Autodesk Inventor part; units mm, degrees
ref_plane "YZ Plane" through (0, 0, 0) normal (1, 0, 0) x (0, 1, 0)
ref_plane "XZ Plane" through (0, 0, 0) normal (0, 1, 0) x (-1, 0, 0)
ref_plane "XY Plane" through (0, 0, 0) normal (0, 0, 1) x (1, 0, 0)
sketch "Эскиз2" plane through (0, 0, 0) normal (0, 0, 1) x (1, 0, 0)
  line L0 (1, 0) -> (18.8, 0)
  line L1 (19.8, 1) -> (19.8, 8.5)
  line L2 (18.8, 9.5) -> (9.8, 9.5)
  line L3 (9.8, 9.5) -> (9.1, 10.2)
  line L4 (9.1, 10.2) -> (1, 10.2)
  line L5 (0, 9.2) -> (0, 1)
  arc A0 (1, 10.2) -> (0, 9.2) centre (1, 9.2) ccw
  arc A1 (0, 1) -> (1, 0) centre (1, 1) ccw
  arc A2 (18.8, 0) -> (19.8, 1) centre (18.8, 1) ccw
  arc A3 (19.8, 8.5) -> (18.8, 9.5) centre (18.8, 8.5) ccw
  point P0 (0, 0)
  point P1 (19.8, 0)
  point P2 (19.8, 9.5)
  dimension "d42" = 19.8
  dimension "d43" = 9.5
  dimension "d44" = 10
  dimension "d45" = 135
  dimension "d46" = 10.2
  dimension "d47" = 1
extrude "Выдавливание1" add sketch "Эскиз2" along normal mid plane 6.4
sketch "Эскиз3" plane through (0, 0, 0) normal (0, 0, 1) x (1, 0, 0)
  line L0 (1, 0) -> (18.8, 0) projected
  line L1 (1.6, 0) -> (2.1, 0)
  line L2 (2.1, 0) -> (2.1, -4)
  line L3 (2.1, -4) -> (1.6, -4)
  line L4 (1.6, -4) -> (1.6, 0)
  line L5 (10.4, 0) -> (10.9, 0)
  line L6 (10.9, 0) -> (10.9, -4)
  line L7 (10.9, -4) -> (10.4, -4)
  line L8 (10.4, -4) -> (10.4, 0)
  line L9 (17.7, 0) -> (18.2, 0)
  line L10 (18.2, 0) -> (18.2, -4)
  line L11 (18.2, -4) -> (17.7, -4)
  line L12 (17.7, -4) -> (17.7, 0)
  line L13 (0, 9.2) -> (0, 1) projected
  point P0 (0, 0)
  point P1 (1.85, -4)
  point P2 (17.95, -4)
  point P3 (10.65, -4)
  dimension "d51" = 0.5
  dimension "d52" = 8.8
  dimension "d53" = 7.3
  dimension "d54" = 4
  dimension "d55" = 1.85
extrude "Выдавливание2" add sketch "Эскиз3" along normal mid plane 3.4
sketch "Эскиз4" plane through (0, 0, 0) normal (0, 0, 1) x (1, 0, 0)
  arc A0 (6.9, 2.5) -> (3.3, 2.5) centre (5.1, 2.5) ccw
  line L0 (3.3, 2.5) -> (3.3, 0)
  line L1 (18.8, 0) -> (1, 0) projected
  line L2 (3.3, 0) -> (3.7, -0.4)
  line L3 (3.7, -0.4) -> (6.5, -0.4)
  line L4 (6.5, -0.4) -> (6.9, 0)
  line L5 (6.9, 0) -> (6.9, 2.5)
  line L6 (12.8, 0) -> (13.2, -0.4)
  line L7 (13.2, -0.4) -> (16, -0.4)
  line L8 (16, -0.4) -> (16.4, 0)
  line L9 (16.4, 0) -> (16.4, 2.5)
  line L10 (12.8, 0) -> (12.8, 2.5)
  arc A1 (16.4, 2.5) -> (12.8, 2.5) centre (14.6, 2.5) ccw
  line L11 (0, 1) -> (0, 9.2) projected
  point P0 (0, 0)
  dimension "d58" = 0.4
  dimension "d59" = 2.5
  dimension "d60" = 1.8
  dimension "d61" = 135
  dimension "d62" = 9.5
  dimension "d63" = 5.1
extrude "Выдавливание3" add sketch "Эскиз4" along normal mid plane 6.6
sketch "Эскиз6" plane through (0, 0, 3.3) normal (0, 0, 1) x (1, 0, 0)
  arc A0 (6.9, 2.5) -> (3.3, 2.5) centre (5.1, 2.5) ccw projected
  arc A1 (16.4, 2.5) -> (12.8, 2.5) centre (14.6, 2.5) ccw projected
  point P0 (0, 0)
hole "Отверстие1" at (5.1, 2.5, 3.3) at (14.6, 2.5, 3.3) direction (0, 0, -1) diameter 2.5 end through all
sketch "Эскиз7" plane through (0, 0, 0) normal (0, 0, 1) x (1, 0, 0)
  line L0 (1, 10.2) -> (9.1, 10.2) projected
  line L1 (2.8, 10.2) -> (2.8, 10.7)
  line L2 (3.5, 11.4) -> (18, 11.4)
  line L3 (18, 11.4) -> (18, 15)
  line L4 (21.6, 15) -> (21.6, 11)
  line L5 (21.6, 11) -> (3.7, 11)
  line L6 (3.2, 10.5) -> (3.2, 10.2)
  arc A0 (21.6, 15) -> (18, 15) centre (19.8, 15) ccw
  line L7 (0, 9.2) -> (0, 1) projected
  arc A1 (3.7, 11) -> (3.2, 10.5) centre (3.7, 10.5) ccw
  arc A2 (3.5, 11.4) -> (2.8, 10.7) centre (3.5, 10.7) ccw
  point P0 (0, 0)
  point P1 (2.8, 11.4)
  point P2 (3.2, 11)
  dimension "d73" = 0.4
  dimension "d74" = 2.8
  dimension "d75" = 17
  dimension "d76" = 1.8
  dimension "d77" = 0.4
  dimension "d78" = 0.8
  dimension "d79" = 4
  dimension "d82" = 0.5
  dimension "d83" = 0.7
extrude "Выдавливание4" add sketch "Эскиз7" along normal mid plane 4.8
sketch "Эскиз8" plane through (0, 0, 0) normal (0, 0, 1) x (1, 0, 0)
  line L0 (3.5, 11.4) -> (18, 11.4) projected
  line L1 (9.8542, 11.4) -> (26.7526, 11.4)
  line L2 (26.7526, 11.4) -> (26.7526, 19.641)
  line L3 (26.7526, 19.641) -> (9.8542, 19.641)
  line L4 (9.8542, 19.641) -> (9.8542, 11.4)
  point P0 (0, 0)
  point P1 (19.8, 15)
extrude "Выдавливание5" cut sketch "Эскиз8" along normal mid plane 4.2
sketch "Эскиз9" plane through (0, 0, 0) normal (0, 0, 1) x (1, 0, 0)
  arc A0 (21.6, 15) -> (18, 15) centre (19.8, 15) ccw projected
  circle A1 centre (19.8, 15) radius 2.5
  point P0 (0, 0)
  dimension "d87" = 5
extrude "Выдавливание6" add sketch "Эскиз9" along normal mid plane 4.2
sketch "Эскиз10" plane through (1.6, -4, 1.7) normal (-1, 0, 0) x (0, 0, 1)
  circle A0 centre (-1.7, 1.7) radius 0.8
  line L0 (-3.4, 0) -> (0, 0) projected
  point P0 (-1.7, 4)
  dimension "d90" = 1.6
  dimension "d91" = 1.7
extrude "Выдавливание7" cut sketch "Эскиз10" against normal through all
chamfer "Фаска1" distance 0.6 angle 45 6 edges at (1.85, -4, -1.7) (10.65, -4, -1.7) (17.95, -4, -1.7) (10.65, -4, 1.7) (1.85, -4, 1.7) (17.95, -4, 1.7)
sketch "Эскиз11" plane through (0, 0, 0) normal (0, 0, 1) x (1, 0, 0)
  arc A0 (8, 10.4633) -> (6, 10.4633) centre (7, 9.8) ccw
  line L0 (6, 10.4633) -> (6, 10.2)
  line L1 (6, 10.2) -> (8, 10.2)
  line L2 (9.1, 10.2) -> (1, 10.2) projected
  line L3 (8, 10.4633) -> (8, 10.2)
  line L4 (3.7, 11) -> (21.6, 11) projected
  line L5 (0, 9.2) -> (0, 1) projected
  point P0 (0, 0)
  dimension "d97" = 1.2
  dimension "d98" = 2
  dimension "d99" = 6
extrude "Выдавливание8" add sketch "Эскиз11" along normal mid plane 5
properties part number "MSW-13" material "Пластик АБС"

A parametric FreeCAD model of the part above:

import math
import FreeCAD as App
import Part
import Sketcher
from FreeCAD import Vector
Q = App.Units.Quantity


def edges_at(feature, points):
    """Names of the edges that pass closest to the given points."""
    edges = feature.Shape.Edges
    near = lambda p: min(range(len(edges)), key=lambda i: edges[i].distToShape(Part.Vertex(*p))[0])
    return sorted({f"Edge{near(p) + 1}" for p in points})

doc = App.newDocument("Part")
params = doc.addObject("Spreadsheet::Sheet", "Params")
for row, (alias, value) in enumerate([
    ("sketch1_radius", "1 mm"),
    ("pad1_length", "6.4 mm"),
    ("sketch2_height", "4 mm"),
    ("sketch2_width", "0.5 mm"),
    ("pad2_length", "3.4 mm"),
    ("sketch3_radius", "1.8 mm"),
    ("sketch3_height", "2.5 mm"),
    ("pad3_length", "6.6 mm"),
    ("sketch4_diameter", "2.5 mm"),
    ("hole_diameter", "2.5 mm"),
    ("sketch5_radius", "0.5 mm"),
    ("sketch5_radius2", "1.8 mm"),
    ("sketch5_radius3", "0.7 mm"),
    ("sketch5_height", "4 mm"),
    ("sketch5_width", "0.4 mm"),
    ("pad4_length", "4.8 mm"),
    ("pocket1_length", "4.2 mm"),
    ("sketch7_diameter", "5 mm"),
    ("pad5_length", "4.2 mm"),
    ("sketch8_diameter", "1.6 mm"),
    ("chamfer_size", "0.6 mm"),
    ("sketch9_radius", "1.2 mm"),
    ("sketch9_width", "2 mm"),
    ("pad6_length", "5 mm"),
], start=1):
    params.set(f"A{row}", alias)
    params.set(f"B{row}", "=" + value)
    params.setAlias(f"B{row}", alias)

body = doc.addObject("PartDesign::Body", "Body")

# Sketch on XY plane
sketch1 = body.newObject("Sketcher::SketchObject", "Sketch")
sketch1.AttachmentSupport = (doc.getObject("XY_Plane"), [""])
sketch1.MapMode = "FlatFace"
sketch1.addGeometry([
    Part.ArcOfCircle(Part.Circle(Vector(1, 1, 0), Vector(0, 0, 1), 1), math.radians(180), math.radians(270)),  # 0
    Part.LineSegment(Vector(1, 0, 0), Vector(18.8, 0, 0)),  # 1
    Part.ArcOfCircle(Part.Circle(Vector(18.8, 1, 0), Vector(0, 0, 1), 1), math.radians(-90), math.radians(0)),  # 2
    Part.LineSegment(Vector(19.8, 1, 0), Vector(19.8, 8.5, 0)),  # 3
    Part.ArcOfCircle(Part.Circle(Vector(18.8, 8.5, 0), Vector(0, 0, 1), 1), math.radians(0), math.radians(90)),  # 4
    Part.LineSegment(Vector(18.8, 9.5, 0), Vector(9.8, 9.5, 0)),  # 5
    Part.LineSegment(Vector(9.8, 9.5, 0), Vector(9.1, 10.2, 0)),  # 6
    Part.LineSegment(Vector(9.1, 10.2, 0), Vector(1, 10.2, 0)),  # 7
    Part.ArcOfCircle(Part.Circle(Vector(1, 9.2, 0), Vector(0, 0, 1), 1), math.radians(90), math.radians(180)),  # 8
    Part.LineSegment(Vector(0, 9.2, 0), Vector(0, 1, 0)),  # 9
], False)
sketch1.addConstraint([
    Sketcher.Constraint("Tangent", 0, 2, 1, 1),
    Sketcher.Constraint("Tangent", 1, 2, 2, 1),
    Sketcher.Constraint("Tangent", 2, 2, 3, 1),
    Sketcher.Constraint("Tangent", 3, 2, 4, 1),
    Sketcher.Constraint("Tangent", 4, 2, 5, 1),
    Sketcher.Constraint("Coincident", 5, 2, 6, 1),
    Sketcher.Constraint("Coincident", 6, 2, 7, 1),
    Sketcher.Constraint("Tangent", 7, 2, 8, 1),
    Sketcher.Constraint("Tangent", 8, 2, 9, 1),
    Sketcher.Constraint("Tangent", 9, 2, 0, 1),
    Sketcher.Constraint("Horizontal", 1),
    Sketcher.Constraint("Vertical", 3),
    Sketcher.Constraint("Horizontal", 5),
    Sketcher.Constraint("Horizontal", 7),
    Sketcher.Constraint("Vertical", 9),
    Sketcher.Constraint("Equal", 0, 2),
    Sketcher.Constraint("Equal", 2, 4),
    Sketcher.Constraint("Equal", 4, 8),
    Sketcher.Constraint("PointOnObject", 0, 2, -1),
    Sketcher.Constraint("PointOnObject", 8, 2, -2),
    Sketcher.Constraint("Radius", 0, 1.0),
    Sketcher.Constraint("Angle", 6, Q("135 deg")),
    Sketcher.Constraint("DistanceX", 5, 2, 3, 2, 10.0),
    Sketcher.Constraint("DistanceX", -1, 1, 2, 2, 19.8),
    Sketcher.Constraint("DistanceY", -1, 1, 4, 2, 9.5),
    Sketcher.Constraint("DistanceY", -1, 1, 6, 2, 10.2),
])
sketch1.setExpression("Constraints[20]", "Params.sketch1_radius")
pad1 = body.newObject("PartDesign::Pad", "Pad")
pad1.Profile = sketch1
pad1.setExpression("Length", "Params.pad1_length")
pad1.Midplane = True

# Sketch on XY plane
sketch2 = body.newObject("Sketcher::SketchObject", "Sketch001")
sketch2.AttachmentSupport = (doc.getObject("XY_Plane"), [""])
sketch2.MapMode = "FlatFace"
sketch2.addGeometry([
    Part.LineSegment(Vector(18.2, 0, 0), Vector(17.7, 0, 0)),  # 0
    Part.LineSegment(Vector(17.7, 0, 0), Vector(17.7, -4, 0)),  # 1
    Part.LineSegment(Vector(17.7, -4, 0), Vector(18.2, -4, 0)),  # 2
    Part.LineSegment(Vector(18.2, -4, 0), Vector(18.2, 0, 0)),  # 3
    Part.LineSegment(Vector(10.9, 0, 0), Vector(10.4, 0, 0)),  # 4
    Part.LineSegment(Vector(10.4, 0, 0), Vector(10.4, -4, 0)),  # 5
    Part.LineSegment(Vector(10.4, -4, 0), Vector(10.9, -4, 0)),  # 6
    Part.LineSegment(Vector(10.9, -4, 0), Vector(10.9, 0, 0)),  # 7
    Part.LineSegment(Vector(2.1, 0, 0), Vector(1.6, 0, 0)),  # 8
    Part.LineSegment(Vector(1.6, 0, 0), Vector(1.6, -4, 0)),  # 9
    Part.LineSegment(Vector(1.6, -4, 0), Vector(2.1, -4, 0)),  # 10
    Part.LineSegment(Vector(2.1, -4, 0), Vector(2.1, 0, 0)),  # 11
], False)
sketch2.addConstraint([
    Sketcher.Constraint("Coincident", 0, 2, 1, 1),
    Sketcher.Constraint("Coincident", 1, 2, 2, 1),
    Sketcher.Constraint("Coincident", 2, 2, 3, 1),
    Sketcher.Constraint("Coincident", 3, 2, 0, 1),
    Sketcher.Constraint("Coincident", 4, 2, 5, 1),
    Sketcher.Constraint("Coincident", 5, 2, 6, 1),
    Sketcher.Constraint("Coincident", 6, 2, 7, 1),
    Sketcher.Constraint("Coincident", 7, 2, 4, 1),
    Sketcher.Constraint("Coincident", 8, 2, 9, 1),
    Sketcher.Constraint("Coincident", 9, 2, 10, 1),
    Sketcher.Constraint("Coincident", 10, 2, 11, 1),
    Sketcher.Constraint("Coincident", 11, 2, 8, 1),
    Sketcher.Constraint("Horizontal", 0),
    Sketcher.Constraint("Vertical", 1),
    Sketcher.Constraint("Horizontal", 2),
    Sketcher.Constraint("Vertical", 3),
    Sketcher.Constraint("Horizontal", 4),
    Sketcher.Constraint("Vertical", 5),
    Sketcher.Constraint("Horizontal", 6),
    Sketcher.Constraint("Vertical", 7),
    Sketcher.Constraint("Horizontal", 8),
    Sketcher.Constraint("Vertical", 9),
    Sketcher.Constraint("Horizontal", 10),
    Sketcher.Constraint("Vertical", 11),
    Sketcher.Constraint("PointOnObject", 0, 2, -1),
    Sketcher.Constraint("PointOnObject", 4, 2, -1),
    Sketcher.Constraint("PointOnObject", 8, 2, -1),
    Sketcher.Constraint("Horizontal", 2, 2, 5, 2),
    Sketcher.Constraint("Horizontal", 6, 2, 9, 2),
    Sketcher.Constraint("Equal", 2, 4),
    Sketcher.Constraint("Equal", 6, 8),
    Sketcher.Constraint("DistanceY", 1, 2, 1, 1, 4.0),
    Sketcher.Constraint("DistanceX", 0, 2, 0, 1, 0.5),
    Sketcher.Constraint("DistanceX", 4, 2, 0, 2, 7.3),
    Sketcher.Constraint("DistanceX", 8, 2, 4, 2, 8.8),
    Sketcher.Constraint("DistanceX", -1, 1, 0, 2, 17.7),
])
sketch2.setExpression("Constraints[31]", "Params.sketch2_height")
sketch2.setExpression("Constraints[32]", "Params.sketch2_width")
pad2 = body.newObject("PartDesign::Pad", "Pad001")
pad2.Profile = sketch2
pad2.setExpression("Length", "Params.pad2_length")
pad2.Midplane = True

# Sketch on XY plane
sketch3 = body.newObject("Sketcher::SketchObject", "Sketch002")
sketch3.AttachmentSupport = (doc.getObject("XY_Plane"), [""])
sketch3.MapMode = "FlatFace"
sketch3.addGeometry([
    Part.LineSegment(Vector(6.9, 0, 0), Vector(6.9, 2.5, 0)),  # 0
    Part.ArcOfCircle(Part.Circle(Vector(5.1, 2.5, 0), Vector(0, 0, 1), 1.8), math.radians(0), math.radians(180)),  # 1
    Part.LineSegment(Vector(3.3, 2.5, 0), Vector(3.3, 0, 0)),  # 2
    Part.LineSegment(Vector(3.3, 0, 0), Vector(3.7, -0.4, 0)),  # 3
    Part.LineSegment(Vector(3.7, -0.4, 0), Vector(6.5, -0.4, 0)),  # 4
    Part.LineSegment(Vector(6.5, -0.4, 0), Vector(6.9, 0, 0)),  # 5
    Part.LineSegment(Vector(12.8, 2.5, 0), Vector(12.8, 0, 0)),  # 6
    Part.LineSegment(Vector(12.8, 0, 0), Vector(13.2, -0.4, 0)),  # 7
    Part.LineSegment(Vector(13.2, -0.4, 0), Vector(16, -0.4, 0)),  # 8
    Part.LineSegment(Vector(16, -0.4, 0), Vector(16.4, 0, 0)),  # 9
    Part.LineSegment(Vector(16.4, 0, 0), Vector(16.4, 2.5, 0)),  # 10
    Part.ArcOfCircle(Part.Circle(Vector(14.6, 2.5, 0), Vector(0, 0, 1), 1.8), math.radians(0), math.radians(180)),  # 11
], False)
sketch3.addConstraint([
    Sketcher.Constraint("Tangent", 0, 2, 1, 1),
    Sketcher.Constraint("Tangent", 1, 2, 2, 1),
    Sketcher.Constraint("Coincident", 2, 2, 3, 1),
    Sketcher.Constraint("Coincident", 3, 2, 4, 1),
    Sketcher.Constraint("Coincident", 4, 2, 5, 1),
    Sketcher.Constraint("Coincident", 5, 2, 0, 1),
    Sketcher.Constraint("Coincident", 6, 2, 7, 1),
    Sketcher.Constraint("Coincident", 7, 2, 8, 1),
    Sketcher.Constraint("Coincident", 8, 2, 9, 1),
    Sketcher.Constraint("Coincident", 9, 2, 10, 1),
    Sketcher.Constraint("Tangent", 10, 2, 11, 1),
    Sketcher.Constraint("Tangent", 11, 2, 6, 1),
    Sketcher.Constraint("Vertical", 0),
    Sketcher.Constraint("Vertical", 2),
    Sketcher.Constraint("Horizontal", 4),
    Sketcher.Constraint("Vertical", 6),
    Sketcher.Constraint("Horizontal", 8),
    Sketcher.Constraint("Vertical", 10),
    Sketcher.Constraint("Equal", 1, 11),
    Sketcher.Constraint("PointOnObject", 2, 2, -1),
    Sketcher.Constraint("PointOnObject", 5, 2, -1),
    Sketcher.Constraint("PointOnObject", 6, 2, -1),
    Sketcher.Constraint("PointOnObject", 9, 2, -1),
    Sketcher.Constraint("Perpendicular", 3, 5),
    Sketcher.Constraint("Perpendicular", 5, 7),
    Sketcher.Constraint("Perpendicular", 7, 9),
    Sketcher.Constraint("Horizontal", 1, 3, 11, 3),
    Sketcher.Constraint("Horizontal", 4, 2, 7, 2),
    Sketcher.Constraint("Equal", 3, 5),
    Sketcher.Constraint("Radius", 1, 1.8),
    Sketcher.Constraint("DistanceY", 0, 1, 0, 2, 2.5),
    Sketcher.Constraint("DistanceX", -1, 1, 1, 3, 5.1),
    Sketcher.Constraint("DistanceY", 3, 2, -1, 1, 0.4),
    Sketcher.Constraint("DistanceX", 1, 3, 11, 3, 9.5),
])
sketch3.setExpression("Constraints[29]", "Params.sketch3_radius")
sketch3.setExpression("Constraints[30]", "Params.sketch3_height")
pad3 = body.newObject("PartDesign::Pad", "Pad002")
pad3.Profile = sketch3
pad3.setExpression("Length", "Params.pad3_length")
pad3.Midplane = True

# Sketch on XY plane
sketch4 = body.newObject("Sketcher::SketchObject", "Sketch003")
sketch4.AttachmentSupport = (doc.getObject("XY_Plane"), [""])
sketch4.MapMode = "FlatFace"
sketch4.AttachmentOffset = App.Placement(Vector(0, 0, 3.3), App.Rotation())
sketch4.addGeometry([
    Part.Circle(Vector(5.1, 2.5, 0), Vector(0, 0, 1), 1.2),
    Part.Circle(Vector(14.6, 2.5, 0), Vector(0, 0, 1), 1.2),
], False)
sketch4.addConstraint([
    Sketcher.Constraint("Equal", 0, 1),
    Sketcher.Constraint("Horizontal", 0, 3, 1, 3),
    Sketcher.Constraint("Diameter", 0, 2.5),
    Sketcher.Constraint("DistanceX", -1, 1, 0, 3, 5.1),
    Sketcher.Constraint("DistanceY", -1, 1, 0, 3, 2.5),
    Sketcher.Constraint("DistanceX", -1, 1, 1, 3, 14.6),
])
sketch4.setExpression("Constraints[2]", "Params.sketch4_diameter")
doc.recompute()
hole = body.newObject("PartDesign::Hole", "Hole")
hole.Profile = sketch4
hole.ThreadType = "None"
hole.setExpression("Diameter", "Params.hole_diameter")
hole.DepthType = "ThroughAll"

# Sketch on XY plane
sketch5 = body.newObject("Sketcher::SketchObject", "Sketch004")
sketch5.AttachmentSupport = (doc.getObject("XY_Plane"), [""])
sketch5.MapMode = "FlatFace"
sketch5.addGeometry([
    Part.LineSegment(Vector(2.8, 10.7, 0), Vector(2.8, 10.2, 0)),  # 0
    Part.LineSegment(Vector(2.8, 10.2, 0), Vector(3.2, 10.2, 0)),  # 1
    Part.LineSegment(Vector(3.2, 10.2, 0), Vector(3.2, 10.5, 0)),  # 2
    Part.ArcOfCircle(Part.Circle(Vector(3.7, 10.5, 0), Vector(0, 0, 1), 0.5), math.radians(90), math.radians(180)),  # 3
    Part.LineSegment(Vector(3.7, 11, 0), Vector(21.6, 11, 0)),  # 4
    Part.LineSegment(Vector(21.6, 11, 0), Vector(21.6, 15, 0)),  # 5
    Part.ArcOfCircle(Part.Circle(Vector(19.8, 15, 0), Vector(0, 0, 1), 1.8), math.radians(0), math.radians(180)),  # 6
    Part.LineSegment(Vector(18, 15, 0), Vector(18, 11.4, 0)),  # 7
    Part.LineSegment(Vector(18, 11.4, 0), Vector(3.5, 11.4, 0)),  # 8
    Part.ArcOfCircle(Part.Circle(Vector(3.5, 10.7, 0), Vector(0, 0, 1), 0.7), math.radians(90), math.radians(180)),  # 9
], False)
sketch5.addConstraint([
    Sketcher.Constraint("Coincident", 0, 2, 1, 1),
    Sketcher.Constraint("Coincident", 1, 2, 2, 1),
    Sketcher.Constraint("Tangent", 2, 2, 3, 2),
    Sketcher.Constraint("Tangent", 3, 1, 4, 1),
    Sketcher.Constraint("Coincident", 4, 2, 5, 1),
    Sketcher.Constraint("Tangent", 5, 2, 6, 1),
    Sketcher.Constraint("Tangent", 6, 2, 7, 1),
    Sketcher.Constraint("Coincident", 7, 2, 8, 1),
    Sketcher.Constraint("Tangent", 8, 2, 9, 1),
    Sketcher.Constraint("Tangent", 9, 2, 0, 1),
    Sketcher.Constraint("Vertical", 0),
    Sketcher.Constraint("Horizontal", 1),
    Sketcher.Constraint("Vertical", 2),
    Sketcher.Constraint("Horizontal", 4),
    Sketcher.Constraint("Vertical", 5),
    Sketcher.Constraint("Vertical", 7),
    Sketcher.Constraint("Horizontal", 8),
    Sketcher.Constraint("Radius", 3, 0.5),
    Sketcher.Constraint("Radius", 6, 1.8),
    Sketcher.Constraint("Radius", 9, 0.7),
    Sketcher.Constraint("DistanceY", 5, 1, 5, 2, 4.0),
    Sketcher.Constraint("DistanceX", 1, 1, 1, 2, 0.4),
    Sketcher.Constraint("DistanceY", 0, 2, 0, 1, 0.5),
    Sketcher.Constraint("DistanceX", 0, 2, 6, 3, 17.0),
    Sketcher.Constraint("DistanceX", -1, 1, 0, 2, 2.8),
    Sketcher.Constraint("DistanceY", 1, 2, 3, 1, 0.8),
    Sketcher.Constraint("DistanceY", -1, 1, 6, 3, 15.0),
])
sketch5.setExpression("Constraints[17]", "Params.sketch5_radius")
sketch5.setExpression("Constraints[18]", "Params.sketch5_radius2")
sketch5.setExpression("Constraints[19]", "Params.sketch5_radius3")
sketch5.setExpression("Constraints[20]", "Params.sketch5_height")
sketch5.setExpression("Constraints[21]", "Params.sketch5_width")
pad4 = body.newObject("PartDesign::Pad", "Pad003")
pad4.Profile = sketch5
pad4.setExpression("Length", "Params.pad4_length")
pad4.Midplane = True

# Sketch on XY plane
sketch6 = body.newObject("Sketcher::SketchObject", "Sketch005")
sketch6.AttachmentSupport = (doc.getObject("XY_Plane"), [""])
sketch6.MapMode = "FlatFace"
sketch6.addGeometry([
    Part.LineSegment(Vector(10, 20, 0), Vector(10, 11, 0)),
    Part.LineSegment(Vector(10, 11, 0), Vector(27, 11, 0)),
    Part.LineSegment(Vector(27, 11, 0), Vector(27, 20, 0)),
    Part.LineSegment(Vector(27, 20, 0), Vector(10, 20, 0)),
], False)
sketch6.addConstraint([
    Sketcher.Constraint("Coincident", 0, 2, 1, 1),
    Sketcher.Constraint("Coincident", 1, 2, 2, 1),
    Sketcher.Constraint("Coincident", 2, 2, 3, 1),
    Sketcher.Constraint("Coincident", 3, 2, 0, 1),
    Sketcher.Constraint("Vertical", 0),
    Sketcher.Constraint("Horizontal", 1),
    Sketcher.Constraint("Vertical", 2),
    Sketcher.Constraint("Horizontal", 3),
    Sketcher.Constraint("DistanceY", -1, 1, 0, 2, 11.4),
    Sketcher.Constraint("DistanceY", 0, 2, 0, 1, 8.241),
    Sketcher.Constraint("DistanceX", 1, 1, 1, 2, 16.8984),
    Sketcher.Constraint("DistanceX", -1, 1, 0, 2, 9.8542),
])
pocket1 = body.newObject("PartDesign::Pocket", "Pocket")
pocket1.Profile = sketch6
pocket1.setExpression("Length", "Params.pocket1_length")
pocket1.Midplane = True

# Sketch on XY plane
sketch7 = body.newObject("Sketcher::SketchObject", "Sketch006")
sketch7.AttachmentSupport = (doc.getObject("XY_Plane"), [""])
sketch7.MapMode = "FlatFace"
sketch7.addGeometry(Part.Circle(Vector(19.8, 15, 0), Vector(0, 0, 1), 2.5), False)
sketch7.addConstraint([
    Sketcher.Constraint("Diameter", 0, 5.0),
    Sketcher.Constraint("DistanceY", -1, 1, 0, 3, 15.0),
    Sketcher.Constraint("DistanceX", -1, 1, 0, 3, 19.8),
])
sketch7.setExpression("Constraints[0]", "Params.sketch7_diameter")
pad5 = body.newObject("PartDesign::Pad", "Pad004")
pad5.Profile = sketch7
pad5.setExpression("Length", "Params.pad5_length")
pad5.Midplane = True

# Sketch on YZ plane
sketch8 = body.newObject("Sketcher::SketchObject", "Sketch007")
sketch8.AttachmentSupport = (doc.getObject("YZ_Plane"), [""])
sketch8.MapMode = "FlatFace"
sketch8.AttachmentOffset = App.Placement(Vector(0, 0, 1.6), App.Rotation())
sketch8.addGeometry(Part.Circle(Vector(-2.3, 0, 0), Vector(0, 0, 1), 0.8), False)
sketch8.addConstraint([
    Sketcher.Constraint("PointOnObject", 0, 3, -1),
    Sketcher.Constraint("Diameter", 0, 1.6),
    Sketcher.Constraint("DistanceX", 0, 3, -1, 1, 2.3),
])
sketch8.setExpression("Constraints[1]", "Params.sketch8_diameter")
pocket2 = body.newObject("PartDesign::Pocket", "Pocket001")
pocket2.Profile = sketch8
pocket2.Type = "ThroughAll"
pocket2.Reversed = True
doc.recompute()

chamfer = body.newObject("PartDesign::Chamfer", "Chamfer")
chamfer.Base = (pocket2, edges_at(pocket2, [
    (1.85, -4, -1.7),
    (10.65, -4, -1.7),
    (17.95, -4, -1.7),
    (10.65, -4, 1.7),
    (1.85, -4, 1.7),
    (17.95, -4, 1.7),
]))
chamfer.setExpression("Size", "Params.chamfer_size")

# Sketch on XY plane
sketch9 = body.newObject("Sketcher::SketchObject", "Sketch008")
sketch9.AttachmentSupport = (doc.getObject("XY_Plane"), [""])
sketch9.MapMode = "FlatFace"
sketch9.addGeometry([
    Part.LineSegment(Vector(8, 10.2, 0), Vector(8, 10.46, 0)),
    Part.ArcOfCircle(Part.Circle(Vector(7, 9.8, 0), Vector(0, 0, 1), 1.2), math.radians(34), math.radians(146)),
    Part.LineSegment(Vector(6, 10.46, 0), Vector(6, 10.2, 0)),
    Part.LineSegment(Vector(6, 10.2, 0), Vector(8, 10.2, 0)),
], False)
sketch9.addConstraint([
    Sketcher.Constraint("Coincident", 0, 2, 1, 1),
    Sketcher.Constraint("Coincident", 1, 2, 2, 1),
    Sketcher.Constraint("Coincident", 2, 2, 3, 1),
    Sketcher.Constraint("Coincident", 3, 2, 0, 1),
    Sketcher.Constraint("Vertical", 0),
    Sketcher.Constraint("Vertical", 2),
    Sketcher.Constraint("Horizontal", 3),
    Sketcher.Constraint("Horizontal", 0, 2, 1, 2),
    Sketcher.Constraint("Radius", 1, 1.2),
    Sketcher.Constraint("DistanceX", 3, 1, 3, 2, 2.0),
    Sketcher.Constraint("DistanceX", -1, 1, 1, 2, 6.0),
    Sketcher.Constraint("DistanceY", -1, 1, 1, 3, 9.8),
    Sketcher.Constraint("DistanceY", -1, 1, 2, 2, 10.2),
])
sketch9.setExpression("Constraints[8]", "Params.sketch9_radius")
sketch9.setExpression("Constraints[9]", "Params.sketch9_width")
pad6 = body.newObject("PartDesign::Pad", "Pad005")
pad6.Profile = sketch9
pad6.setExpression("Length", "Params.pad6_length")
pad6.Midplane = True

doc.recompute()
